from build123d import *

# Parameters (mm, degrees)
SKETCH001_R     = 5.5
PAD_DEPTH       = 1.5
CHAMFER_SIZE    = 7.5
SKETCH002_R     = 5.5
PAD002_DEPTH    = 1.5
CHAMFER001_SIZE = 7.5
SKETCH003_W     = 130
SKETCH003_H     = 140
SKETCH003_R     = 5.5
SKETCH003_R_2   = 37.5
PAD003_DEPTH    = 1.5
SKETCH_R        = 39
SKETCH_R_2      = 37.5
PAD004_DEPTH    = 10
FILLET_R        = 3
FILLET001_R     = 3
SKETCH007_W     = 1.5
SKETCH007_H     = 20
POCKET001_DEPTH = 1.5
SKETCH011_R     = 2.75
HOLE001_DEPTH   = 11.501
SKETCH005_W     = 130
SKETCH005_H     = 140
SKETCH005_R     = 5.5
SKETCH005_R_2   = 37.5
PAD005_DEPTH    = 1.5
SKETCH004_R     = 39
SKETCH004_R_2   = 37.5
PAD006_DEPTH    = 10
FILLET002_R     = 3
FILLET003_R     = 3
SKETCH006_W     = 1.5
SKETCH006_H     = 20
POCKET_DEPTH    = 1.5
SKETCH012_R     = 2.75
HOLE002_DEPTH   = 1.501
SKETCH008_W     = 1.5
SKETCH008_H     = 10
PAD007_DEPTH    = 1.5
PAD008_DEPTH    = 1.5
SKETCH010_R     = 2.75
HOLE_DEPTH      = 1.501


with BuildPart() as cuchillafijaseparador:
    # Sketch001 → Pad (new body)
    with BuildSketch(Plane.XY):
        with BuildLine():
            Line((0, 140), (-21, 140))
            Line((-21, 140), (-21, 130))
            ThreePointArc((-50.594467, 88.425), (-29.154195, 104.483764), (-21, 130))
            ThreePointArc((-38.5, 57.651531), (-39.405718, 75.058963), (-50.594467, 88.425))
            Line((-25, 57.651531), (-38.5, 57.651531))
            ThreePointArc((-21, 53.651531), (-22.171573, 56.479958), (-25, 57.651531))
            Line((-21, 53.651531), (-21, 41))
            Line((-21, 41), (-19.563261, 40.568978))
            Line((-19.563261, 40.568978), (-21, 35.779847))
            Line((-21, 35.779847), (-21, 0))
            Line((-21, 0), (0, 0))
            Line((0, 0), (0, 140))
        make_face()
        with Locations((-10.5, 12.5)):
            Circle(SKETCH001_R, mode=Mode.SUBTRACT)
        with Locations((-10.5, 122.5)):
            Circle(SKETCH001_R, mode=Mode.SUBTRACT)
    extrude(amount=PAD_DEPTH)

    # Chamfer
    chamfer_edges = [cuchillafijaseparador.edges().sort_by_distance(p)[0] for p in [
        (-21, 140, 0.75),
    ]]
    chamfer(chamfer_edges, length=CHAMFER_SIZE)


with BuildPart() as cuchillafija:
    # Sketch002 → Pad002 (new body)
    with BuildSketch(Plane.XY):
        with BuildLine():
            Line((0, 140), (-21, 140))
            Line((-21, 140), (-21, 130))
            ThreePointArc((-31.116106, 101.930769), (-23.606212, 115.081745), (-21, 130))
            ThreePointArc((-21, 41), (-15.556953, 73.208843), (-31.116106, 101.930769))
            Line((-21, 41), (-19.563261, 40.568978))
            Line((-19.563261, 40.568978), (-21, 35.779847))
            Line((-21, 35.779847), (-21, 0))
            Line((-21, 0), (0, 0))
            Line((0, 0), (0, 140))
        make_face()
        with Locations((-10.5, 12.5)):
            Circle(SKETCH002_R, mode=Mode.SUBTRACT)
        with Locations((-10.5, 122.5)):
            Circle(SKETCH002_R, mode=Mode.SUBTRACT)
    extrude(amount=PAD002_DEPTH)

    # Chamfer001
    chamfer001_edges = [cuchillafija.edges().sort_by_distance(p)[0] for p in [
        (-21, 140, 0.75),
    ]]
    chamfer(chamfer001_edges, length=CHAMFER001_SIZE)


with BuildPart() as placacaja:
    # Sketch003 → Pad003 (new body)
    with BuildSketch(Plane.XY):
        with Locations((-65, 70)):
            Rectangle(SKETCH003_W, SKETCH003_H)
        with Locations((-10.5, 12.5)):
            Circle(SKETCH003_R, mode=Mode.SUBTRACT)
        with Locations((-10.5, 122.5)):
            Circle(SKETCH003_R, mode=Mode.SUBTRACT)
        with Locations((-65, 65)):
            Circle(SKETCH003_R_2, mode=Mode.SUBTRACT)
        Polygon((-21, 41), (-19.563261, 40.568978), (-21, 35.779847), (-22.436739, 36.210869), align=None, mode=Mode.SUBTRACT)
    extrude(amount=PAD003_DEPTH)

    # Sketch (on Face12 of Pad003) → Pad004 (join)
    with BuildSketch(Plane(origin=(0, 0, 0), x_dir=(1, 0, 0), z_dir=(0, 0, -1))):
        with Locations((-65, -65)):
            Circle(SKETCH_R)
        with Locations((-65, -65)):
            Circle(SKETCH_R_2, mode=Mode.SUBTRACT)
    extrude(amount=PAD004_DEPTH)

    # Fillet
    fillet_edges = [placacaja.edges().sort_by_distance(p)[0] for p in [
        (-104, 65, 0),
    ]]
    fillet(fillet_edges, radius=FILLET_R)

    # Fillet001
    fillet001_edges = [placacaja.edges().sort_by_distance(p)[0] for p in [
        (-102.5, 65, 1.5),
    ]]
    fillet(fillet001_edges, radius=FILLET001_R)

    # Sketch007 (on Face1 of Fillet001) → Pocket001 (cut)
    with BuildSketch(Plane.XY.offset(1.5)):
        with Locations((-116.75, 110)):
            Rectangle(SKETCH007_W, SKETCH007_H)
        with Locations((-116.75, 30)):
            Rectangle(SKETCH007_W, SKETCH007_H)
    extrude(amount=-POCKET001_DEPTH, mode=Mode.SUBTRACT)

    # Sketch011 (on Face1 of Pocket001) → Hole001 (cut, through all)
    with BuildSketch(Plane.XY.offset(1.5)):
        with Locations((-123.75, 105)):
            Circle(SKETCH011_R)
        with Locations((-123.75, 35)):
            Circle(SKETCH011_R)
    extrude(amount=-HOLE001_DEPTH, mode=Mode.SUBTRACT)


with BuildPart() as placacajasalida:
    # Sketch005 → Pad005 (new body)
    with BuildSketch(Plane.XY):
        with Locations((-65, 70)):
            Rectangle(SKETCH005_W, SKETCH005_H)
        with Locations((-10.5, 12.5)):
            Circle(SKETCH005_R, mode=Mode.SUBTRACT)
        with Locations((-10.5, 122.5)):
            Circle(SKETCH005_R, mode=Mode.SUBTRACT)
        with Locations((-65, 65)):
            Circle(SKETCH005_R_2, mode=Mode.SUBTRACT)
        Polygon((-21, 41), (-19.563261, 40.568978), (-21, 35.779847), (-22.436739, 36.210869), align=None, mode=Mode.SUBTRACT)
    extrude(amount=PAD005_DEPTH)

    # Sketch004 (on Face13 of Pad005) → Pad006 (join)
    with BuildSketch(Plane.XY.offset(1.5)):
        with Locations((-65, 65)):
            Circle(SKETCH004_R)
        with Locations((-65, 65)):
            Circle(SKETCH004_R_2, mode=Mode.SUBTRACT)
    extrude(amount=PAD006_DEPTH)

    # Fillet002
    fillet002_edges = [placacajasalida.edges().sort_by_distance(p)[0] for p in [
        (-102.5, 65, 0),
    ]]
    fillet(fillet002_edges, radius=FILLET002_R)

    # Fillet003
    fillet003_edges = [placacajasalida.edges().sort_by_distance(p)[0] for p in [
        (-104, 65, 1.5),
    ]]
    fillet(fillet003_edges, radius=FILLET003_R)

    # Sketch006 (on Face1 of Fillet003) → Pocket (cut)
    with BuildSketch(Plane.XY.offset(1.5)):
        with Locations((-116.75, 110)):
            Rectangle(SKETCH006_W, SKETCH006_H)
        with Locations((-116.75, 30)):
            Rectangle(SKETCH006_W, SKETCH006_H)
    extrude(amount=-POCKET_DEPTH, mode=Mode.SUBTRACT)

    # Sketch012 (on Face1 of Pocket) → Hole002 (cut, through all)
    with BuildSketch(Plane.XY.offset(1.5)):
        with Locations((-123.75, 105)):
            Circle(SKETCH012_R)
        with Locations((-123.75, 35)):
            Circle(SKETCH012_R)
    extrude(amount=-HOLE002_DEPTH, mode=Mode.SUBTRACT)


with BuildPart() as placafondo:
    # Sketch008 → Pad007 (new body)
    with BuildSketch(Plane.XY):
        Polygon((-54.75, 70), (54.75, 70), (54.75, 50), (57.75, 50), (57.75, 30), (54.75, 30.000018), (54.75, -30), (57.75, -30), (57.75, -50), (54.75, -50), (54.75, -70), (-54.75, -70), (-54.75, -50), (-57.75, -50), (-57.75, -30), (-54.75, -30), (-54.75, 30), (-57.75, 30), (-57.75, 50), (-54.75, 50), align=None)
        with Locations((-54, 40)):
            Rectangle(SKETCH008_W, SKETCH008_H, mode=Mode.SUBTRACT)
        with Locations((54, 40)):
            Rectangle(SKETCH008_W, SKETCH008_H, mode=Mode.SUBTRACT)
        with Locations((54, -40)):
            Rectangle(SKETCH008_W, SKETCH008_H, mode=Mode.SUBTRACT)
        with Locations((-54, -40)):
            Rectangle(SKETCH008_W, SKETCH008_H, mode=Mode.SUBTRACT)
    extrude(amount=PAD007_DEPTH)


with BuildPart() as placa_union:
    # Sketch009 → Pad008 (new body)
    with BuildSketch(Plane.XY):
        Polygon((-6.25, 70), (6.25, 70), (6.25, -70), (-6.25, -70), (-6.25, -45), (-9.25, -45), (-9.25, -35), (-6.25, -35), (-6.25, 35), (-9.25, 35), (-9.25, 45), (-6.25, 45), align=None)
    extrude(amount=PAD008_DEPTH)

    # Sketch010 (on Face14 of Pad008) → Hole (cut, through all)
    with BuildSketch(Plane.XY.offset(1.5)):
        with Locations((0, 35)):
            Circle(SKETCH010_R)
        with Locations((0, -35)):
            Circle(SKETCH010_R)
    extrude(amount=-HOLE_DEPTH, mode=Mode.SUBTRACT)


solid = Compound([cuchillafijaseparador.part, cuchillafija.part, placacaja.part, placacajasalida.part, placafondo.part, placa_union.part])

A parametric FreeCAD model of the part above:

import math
import FreeCAD as App
import Part
import Sketcher
from FreeCAD import Vector


def edges_at(feature, points):
    """Names of the edges that pass closest to the given points."""
    edges = feature.Shape.Edges
    near = lambda p: min(range(len(edges)), key=lambda i: edges[i].distToShape(Part.Vertex(*p))[0])
    return sorted({f"Edge{near(p) + 1}" for p in points})

doc = App.newDocument("Part")
body = doc.addObject("PartDesign::Body", "Body")

# Sketch on XY plane
sketch1 = doc.addObject("Sketcher::SketchObject", "Sketch")
body.addObject(sketch1)
sketch1.AttachmentSupport = (doc.XY_Plane, [""])
sketch1.MapMode = "FlatFace"
sketch1.addGeometry(Part.LineSegment(Vector(0, 140, 0), Vector(-21, 140, 0)), False)
sketch1.addGeometry(Part.LineSegment(Vector(-21, 140, 0), Vector(-21, 130, 0)), False)
sketch1.addGeometry(Part.ArcOfCircle(Part.Circle(Vector(-65, 130, 0), Vector(0, 0, 1), 44), math.radians(-71), math.radians(0)), False)
sketch1.addGeometry(Part.ArcOfCircle(Part.Circle(Vector(-65, 65, 0), Vector(0, 0, 1), 27.5), math.radians(-15), math.radians(58)), False)
sketch1.addGeometry(Part.LineSegment(Vector(-38.5, 57.7, 0), Vector(-25, 57.7, 0)), False)
sketch1.addGeometry(Part.ArcOfCircle(Part.Circle(Vector(-25, 53.7, 0), Vector(0, 0, 1), 4), math.radians(0), math.radians(90)), False)
sketch1.addGeometry(Part.LineSegment(Vector(-21, 53.7, 0), Vector(-21, 41, 0)), False)
sketch1.addGeometry(Part.LineSegment(Vector(-21, 41, 0), Vector(-19.6, 40.6, 0)), False)
sketch1.addGeometry(Part.LineSegment(Vector(-19.6, 40.6, 0), Vector(-21, 35.8, 0)), False)
sketch1.addGeometry(Part.LineSegment(Vector(-21, 35.8, 0), Vector(-21, 0, 0)), False)
sketch1.addGeometry(Part.LineSegment(Vector(-21, 0, 0), Vector(0, 0, 0)), False)
sketch1.addGeometry(Part.LineSegment(Vector(0, 0, 0), Vector(0, 140, 0)), False)
sketch1.addGeometry(Part.Circle(Vector(-10.5, 12.5, 0), Vector(0, 0, 1), 5.5), False)
sketch1.addGeometry(Part.Circle(Vector(-10.5, 122.5, 0), Vector(0, 0, 1), 5.5), False)
sketch1.addConstraint(Sketcher.Constraint("Coincident", 0, 2, 1, 1))
sketch1.addConstraint(Sketcher.Constraint("Tangent", 1, 2, 2, 2))
sketch1.addConstraint(Sketcher.Constraint("Coincident", 2, 1, 3, 2))
sketch1.addConstraint(Sketcher.Constraint("Coincident", 3, 1, 4, 1))
sketch1.addConstraint(Sketcher.Constraint("Tangent", 4, 2, 5, 2))
sketch1.addConstraint(Sketcher.Constraint("Tangent", 5, 1, 6, 1))
sketch1.addConstraint(Sketcher.Constraint("Coincident", 6, 2, 7, 1))
sketch1.addConstraint(Sketcher.Constraint("Coincident", 7, 2, 8, 1))
sketch1.addConstraint(Sketcher.Constraint("Coincident", 8, 2, 9, 1))
sketch1.addConstraint(Sketcher.Constraint("Coincident", 9, 2, 10, 1))
sketch1.addConstraint(Sketcher.Constraint("Coincident", 10, 2, 11, 1))
sketch1.addConstraint(Sketcher.Constraint("Coincident", 11, 2, 0, 1))
sketch1.addConstraint(Sketcher.Constraint("Horizontal", 0))
sketch1.addConstraint(Sketcher.Constraint("Vertical", 1))
sketch1.addConstraint(Sketcher.Constraint("Horizontal", 4))
sketch1.addConstraint(Sketcher.Constraint("Vertical", 6))
sketch1.addConstraint(Sketcher.Constraint("Vertical", 9))
sketch1.addConstraint(Sketcher.Constraint("Horizontal", 10))
sketch1.addConstraint(Sketcher.Constraint("Vertical", 11))
sketch1.addConstraint(Sketcher.Constraint("Coincident", 10, 2, -1, 1))
sketch1.addConstraint(Sketcher.Constraint("Equal", 12, 13))
sketch1.addConstraint(Sketcher.Constraint("Perpendicular", 7, 8))
sketch1.addConstraint(Sketcher.Constraint("Vertical", 2, 3, 3, 3))
sketch1.addConstraint(Sketcher.Constraint("Vertical", 12, 3, 13, 3))
sketch1.addConstraint(Sketcher.Constraint("Vertical", 1, 2, 5, 1))
sketch1.addConstraint(Sketcher.Constraint("Vertical", 6, 2, 8, 2))
sketch1.addConstraint(Sketcher.Constraint("Diameter", 12, 11.0))
sketch1.addConstraint(Sketcher.Constraint("Radius", 2, 43.999998))
sketch1.addConstraint(Sketcher.Constraint("Radius", 5, 4.0))
sketch1.addConstraint(Sketcher.Constraint("Radius", 3, 27.5))
sketch1.addConstraint(Sketcher.Constraint("DistanceX", 0, 2, 0, 1, 21.0))
sketch1.addConstraint(Sketcher.Constraint("DistanceY", 1, 2, 1, 1, 10.0))
sketch1.addConstraint(Sketcher.Constraint("DistanceY", 11, 1, 11, 2, 140.0))
sketch1.addConstraint(Sketcher.Constraint("Distance", 8, 4.999999))
sketch1.addConstraint(Sketcher.Constraint("DistanceX", 4, 1, 4, 2, 13.5))
sketch1.addConstraint(Sketcher.Constraint("DistanceY", -1, 1, 3, 3, 65.0))
sketch1.addConstraint(Sketcher.Constraint("DistanceY", -1, 1, 6, 2, 41.0))
sketch1.addConstraint(Sketcher.Constraint("DistanceY", 12, 3, 13, 3, 110.0))
sketch1.addConstraint(Sketcher.Constraint("DistanceX", 3, 1, 12, 3, 28.0))
sketch1.addConstraint(Sketcher.Constraint("Distance", 7, 1.5))
sketch1.addConstraint(Sketcher.Constraint("DistanceY", -1, 1, 12, 3, 12.5))
pad1 = doc.addObject("PartDesign::Pad", "Pad")
body.addObject(pad1)
pad1.Profile = sketch1
pad1.Length = 1.5
doc.recompute()

chamfer = doc.addObject("PartDesign::Chamfer", "Chamfer")
body.addObject(chamfer)
chamfer.Base = (pad1, edges_at(pad1, [(-21, 140, 0.75)]))
chamfer.Size = 7.5
body2 = doc.addObject("PartDesign::Body", "Body001")

# Sketch on XY plane
sketch2 = doc.addObject("Sketcher::SketchObject", "Sketch001")
body2.addObject(sketch2)
sketch2.AttachmentSupport = (doc.getObject("XY_Plane001"), [""])
sketch2.MapMode = "FlatFace"
sketch2.addGeometry(Part.LineSegment(Vector(0, 140, 0), Vector(-21, 140, 0)), False)
sketch2.addGeometry(Part.LineSegment(Vector(-21, 140, 0), Vector(-21, 130, 0)), False)
sketch2.addGeometry(Part.ArcOfCircle(Part.Circle(Vector(-65, 130, 0), Vector(0, 0, 1), 44), math.radians(-40), math.radians(0)), False)
sketch2.addGeometry(Part.ArcOfCircle(Part.Circle(Vector(-65, 65, 0), Vector(0, 0, 1), 50.1), math.radians(-29), math.radians(47)), False)
sketch2.addGeometry(Part.LineSegment(Vector(-21, 41, 0), Vector(-19.6, 40.6, 0)), False)
sketch2.addGeometry(Part.LineSegment(Vector(-19.6, 40.6, 0), Vector(-21, 35.8, 0)), False)
sketch2.addGeometry(Part.LineSegment(Vector(-21, 35.8, 0), Vector(-21, 0, 0)), False)
sketch2.addGeometry(Part.LineSegment(Vector(-21, 0, 0), Vector(0, 0, 0)), False)
sketch2.addGeometry(Part.LineSegment(Vector(0, 0, 0), Vector(0, 140, 0)), False)
sketch2.addGeometry(Part.Circle(Vector(-10.5, 12.5, 0), Vector(0, 0, 1), 5.5), False)
sketch2.addGeometry(Part.Circle(Vector(-10.5, 122.5, 0), Vector(0, 0, 1), 5.5), False)
sketch2.addConstraint(Sketcher.Constraint("Coincident", 0, 2, 1, 1))
sketch2.addConstraint(Sketcher.Constraint("Tangent", 1, 2, 2, 2))
sketch2.addConstraint(Sketcher.Constraint("Coincident", 2, 1, 3, 2))
sketch2.addConstraint(Sketcher.Constraint("Coincident", 3, 1, 4, 1))
sketch2.addConstraint(Sketcher.Constraint("Coincident", 4, 2, 5, 1))
sketch2.addConstraint(Sketcher.Constraint("Coincident", 5, 2, 6, 1))
sketch2.addConstraint(Sketcher.Constraint("Coincident", 6, 2, 7, 1))
sketch2.addConstraint(Sketcher.Constraint("Coincident", 7, 2, 8, 1))
sketch2.addConstraint(Sketcher.Constraint("Coincident", 8, 2, 0, 1))
sketch2.addConstraint(Sketcher.Constraint("Horizontal", 0))
sketch2.addConstraint(Sketcher.Constraint("Vertical", 1))
sketch2.addConstraint(Sketcher.Constraint("Vertical", 6))
sketch2.addConstraint(Sketcher.Constraint("Horizontal", 7))
sketch2.addConstraint(Sketcher.Constraint("Vertical", 8))
sketch2.addConstraint(Sketcher.Constraint("Coincident", 7, 2, -1, 1))
sketch2.addConstraint(Sketcher.Constraint("Equal", 9, 10))
sketch2.addConstraint(Sketcher.Constraint("Perpendicular", 4, 5))
sketch2.addConstraint(Sketcher.Constraint("Vertical", 9, 3, 10, 3))
sketch2.addConstraint(Sketcher.Constraint("Vertical", 1, 2, 3, 1))
sketch2.addConstraint(Sketcher.Constraint("Vertical", 3, 1, 5, 2))
sketch2.addConstraint(Sketcher.Constraint("Diameter", 9, 11.0))
sketch2.addConstraint(Sketcher.Constraint("DistanceX", 0, 2, 0, 1, 21.0))
sketch2.addConstraint(Sketcher.Constraint("DistanceY", 1, 2, 1, 1, 10.0))
sketch2.addConstraint(Sketcher.Constraint("DistanceY", 8, 1, 8, 2, 140.0))
sketch2.addConstraint(Sketcher.Constraint("Distance", 5, 4.999999))
sketch2.addConstraint(Sketcher.Constraint("DistanceX", 3, 3, -1, 1, 64.999999))
sketch2.addConstraint(Sketcher.Constraint("DistanceY", -1, 1, 3, 3, 65.0))
sketch2.addConstraint(Sketcher.Constraint("DistanceY", -1, 1, 3, 1, 41.0))
sketch2.addConstraint(Sketcher.Constraint("DistanceY", 9, 3, 10, 3, 110.0))
sketch2.addConstraint(Sketcher.Constraint("Distance", 4, 1.5))
sketch2.addConstraint(Sketcher.Constraint("DistanceX", 9, 3, -1, 1, 10.5))
sketch2.addConstraint(Sketcher.Constraint("DistanceY", -1, 1, 9, 3, 12.5))
sketch2.addConstraint(Sketcher.Constraint("Radius", 2, 43.999997))
pad2 = doc.addObject("PartDesign::Pad", "Pad001")
body2.addObject(pad2)
pad2.Profile = sketch2
pad2.Length = 1.5
doc.recompute()

chamfer2 = doc.addObject("PartDesign::Chamfer", "Chamfer001")
body2.addObject(chamfer2)
chamfer2.Base = (pad2, edges_at(pad2, [(-21, 140, 0.75)]))
chamfer2.Size = 7.5
body3 = doc.addObject("PartDesign::Body", "Body002")

# Sketch on XY plane
sketch3 = doc.addObject("Sketcher::SketchObject", "Sketch002")
body3.addObject(sketch3)
sketch3.AttachmentSupport = (doc.getObject("XY_Plane002"), [""])
sketch3.MapMode = "FlatFace"
sketch3.addGeometry(Part.LineSegment(Vector(-130, 140, 0), Vector(-130, 0, 0)), False)
sketch3.addGeometry(Part.LineSegment(Vector(-130, 0, 0), Vector(0, 0, 0)), False)
sketch3.addGeometry(Part.LineSegment(Vector(0, 0, 0), Vector(0, 140, 0)), False)
sketch3.addGeometry(Part.LineSegment(Vector(0, 140, 0), Vector(-130, 140, 0)), False)
sketch3.addGeometry(Part.Circle(Vector(-65, 65, 0), Vector(0, 0, 1), 37.5), False)
sketch3.addGeometry(Part.Circle(Vector(-10.5, 12.5, 0), Vector(0, 0, 1), 5.5), False)
sketch3.addGeometry(Part.LineSegment(Vector(-22.4, 36.2, 0), Vector(-21, 41, 0)), False)
sketch3.addGeometry(Part.LineSegment(Vector(-21, 41, 0), Vector(-19.6, 40.6, 0)), False)
sketch3.addGeometry(Part.LineSegment(Vector(-19.6, 40.6, 0), Vector(-21, 35.8, 0)), False)
sketch3.addGeometry(Part.LineSegment(Vector(-21, 35.8, 0), Vector(-22.4, 36.2, 0)), False)
sketch3.addGeometry(Part.Circle(Vector(-10.5, 122.5, 0), Vector(0, 0, 1), 5.5), False)
sketch3.addConstraint(Sketcher.Constraint("Coincident", 0, 2, 1, 1))
sketch3.addConstraint(Sketcher.Constraint("Coincident", 1, 2, 2, 1))
sketch3.addConstraint(Sketcher.Constraint("Coincident", 2, 2, 3, 1))
sketch3.addConstraint(Sketcher.Constraint("Coincident", 3, 2, 0, 1))
sketch3.addConstraint(Sketcher.Constraint("Coincident", 6, 2, 7, 1))
sketch3.addConstraint(Sketcher.Constraint("Coincident", 7, 2, 8, 1))
sketch3.addConstraint(Sketcher.Constraint("Coincident", 8, 2, 9, 1))
sketch3.addConstraint(Sketcher.Constraint("Coincident", 9, 2, 6, 1))
sketch3.addConstraint(Sketcher.Constraint("Vertical", 0))
sketch3.addConstraint(Sketcher.Constraint("Horizontal", 1))
sketch3.addConstraint(Sketcher.Constraint("Vertical", 2))
sketch3.addConstraint(Sketcher.Constraint("Horizontal", 3))
sketch3.addConstraint(Sketcher.Constraint("Coincident", 1, 2, -1, 1))
sketch3.addConstraint(Sketcher.Constraint("Equal", 5, 10))
sketch3.addConstraint(Sketcher.Constraint("Perpendicular", 6, 7))
sketch3.addConstraint(Sketcher.Constraint("Perpendicular", 7, 8))
sketch3.addConstraint(Sketcher.Constraint("Perpendicular", 8, 9))
sketch3.addConstraint(Sketcher.Constraint("Vertical", 5, 3, 10, 3))
sketch3.addConstraint(Sketcher.Constraint("Vertical", 6, 2, 8, 2))
sketch3.addConstraint(Sketcher.Constraint("Diameter", 4, 75.0))
sketch3.addConstraint(Sketcher.Constraint("Diameter", 5, 11.0))
sketch3.addConstraint(Sketcher.Constraint("DistanceX", 1, 1, 1, 2, 130.0))
sketch3.addConstraint(Sketcher.Constraint("DistanceY", 0, 2, 0, 1, 140.0))
sketch3.addConstraint(Sketcher.Constraint("Distance", 6, 4.999999))
sketch3.addConstraint(Sketcher.Constraint("DistanceX", 4, 3, -1, 1, 65.0))
sketch3.addConstraint(Sketcher.Constraint("DistanceY", -1, 1, 4, 3, 65.0))
sketch3.addConstraint(Sketcher.Constraint("DistanceX", 6, 2, -1, 1, 21.0))
sketch3.addConstraint(Sketcher.Constraint("DistanceY", -1, 1, 6, 2, 41.0))
sketch3.addConstraint(Sketcher.Constraint("DistanceY", 5, 3, 10, 3, 110.0))
sketch3.addConstraint(Sketcher.Constraint("Distance", 7, 1.5))
sketch3.addConstraint(Sketcher.Constraint("DistanceX", 5, 3, -1, 1, 10.5))
sketch3.addConstraint(Sketcher.Constraint("DistanceY", -1, 1, 5, 3, 12.5))
pad3 = doc.addObject("PartDesign::Pad", "Pad002")
body3.addObject(pad3)
pad3.Profile = sketch3
pad3.Length = 1.5

# Sketch on XY plane
sketch4 = doc.addObject("Sketcher::SketchObject", "Sketch003")
body3.addObject(sketch4)
sketch4.AttachmentSupport = (doc.getObject("XY_Plane002"), [""])
sketch4.MapMode = "FlatFace"
sketch4.addGeometry(Part.Circle(Vector(-65, 65, 0), Vector(0, 0, 1), 39), False)
sketch4.addGeometry(Part.Circle(Vector(-65, 65, 0), Vector(0, 0, 1), 38), False)
sketch4.addConstraint(Sketcher.Constraint("Coincident", 1, 3, 0, 3))
sketch4.addConstraint(Sketcher.Constraint("Diameter", 0, 78.0))
sketch4.addConstraint(Sketcher.Constraint("Diameter", 1, 75.0))
sketch4.addConstraint(Sketcher.Constraint("DistanceX", 0, 3, -1, 1, 65.0))
sketch4.addConstraint(Sketcher.Constraint("DistanceY", -1, 1, 0, 3, 65.0))
pad4 = doc.addObject("PartDesign::Pad", "Pad003")
body3.addObject(pad4)
pad4.Profile = sketch4
pad4.Length = 10
pad4.Reversed = True
doc.recompute()

fillet = doc.addObject("PartDesign::Fillet", "Fillet")
body3.addObject(fillet)
fillet.Base = (pad4, edges_at(pad4, [(-104, 65, 0)]))
fillet.Radius = 3
doc.recompute()

fillet2 = doc.addObject("PartDesign::Fillet", "Fillet001")
body3.addObject(fillet2)
fillet2.Base = (fillet, edges_at(fillet, [(-102.5, 65, 1.5)]))
fillet2.Radius = 3

# Sketch on XY plane
sketch5 = doc.addObject("Sketcher::SketchObject", "Sketch004")
body3.addObject(sketch5)
sketch5.AttachmentSupport = (doc.getObject("XY_Plane002"), [""])
sketch5.MapMode = "FlatFace"
sketch5.AttachmentOffset = App.Placement(Vector(0, 0, 1.5), App.Rotation())
sketch5.addGeometry(Part.LineSegment(Vector(-117.5, 120, 0), Vector(-117.5, 100, 0)), False)
sketch5.addGeometry(Part.LineSegment(Vector(-117.5, 100, 0), Vector(-116, 100, 0)), False)
sketch5.addGeometry(Part.LineSegment(Vector(-116, 100, 0), Vector(-116, 120, 0)), False)
sketch5.addGeometry(Part.LineSegment(Vector(-116, 120, 0), Vector(-117.5, 120, 0)), False)
sketch5.addGeometry(Part.LineSegment(Vector(-117.5, 40, 0), Vector(-117.5, 20, 0)), False)
sketch5.addGeometry(Part.LineSegment(Vector(-117.5, 20, 0), Vector(-116, 20, 0)), False)
sketch5.addGeometry(Part.LineSegment(Vector(-116, 20, 0), Vector(-116, 40, 0)), False)
sketch5.addGeometry(Part.LineSegment(Vector(-116, 40, 0), Vector(-117.5, 40, 0)), False)
sketch5.addConstraint(Sketcher.Constraint("Coincident", 0, 2, 1, 1))
sketch5.addConstraint(Sketcher.Constraint("Coincident", 1, 2, 2, 1))
sketch5.addConstraint(Sketcher.Constraint("Coincident", 2, 2, 3, 1))
sketch5.addConstraint(Sketcher.Constraint("Coincident", 3, 2, 0, 1))
sketch5.addConstraint(Sketcher.Constraint("Coincident", 4, 2, 5, 1))
sketch5.addConstraint(Sketcher.Constraint("Coincident", 5, 2, 6, 1))
sketch5.addConstraint(Sketcher.Constraint("Coincident", 6, 2, 7, 1))
sketch5.addConstraint(Sketcher.Constraint("Coincident", 7, 2, 4, 1))
sketch5.addConstraint(Sketcher.Constraint("Vertical", 0))
sketch5.addConstraint(Sketcher.Constraint("Horizontal", 1))
sketch5.addConstraint(Sketcher.Constraint("Vertical", 2))
sketch5.addConstraint(Sketcher.Constraint("Horizontal", 3))
sketch5.addConstraint(Sketcher.Constraint("Vertical", 4))
sketch5.addConstraint(Sketcher.Constraint("Horizontal", 5))
sketch5.addConstraint(Sketcher.Constraint("Vertical", 6))
sketch5.addConstraint(Sketcher.Constraint("Horizontal", 7))
sketch5.addConstraint(Sketcher.Constraint("Vertical", 3, 2, 4, 2))
sketch5.addConstraint(Sketcher.Constraint("Vertical", 2, 2, 5, 2))
sketch5.addConstraint(Sketcher.Constraint("Equal", 2, 4))
sketch5.addConstraint(Sketcher.Constraint("DistanceY", 0, 2, 0, 1, 20.0))
sketch5.addConstraint(Sketcher.Constraint("DistanceX", 1, 1, 1, 2, 1.5))
sketch5.addConstraint(Sketcher.Constraint("DistanceY", -1, 1, 0, 2, 100.0))
sketch5.addConstraint(Sketcher.Constraint("DistanceX", 1, 2, -1, 1, 116.0))
sketch5.addConstraint(Sketcher.Constraint("DistanceY", -1, 1, 4, 2, 20.0))
pocket1 = doc.addObject("PartDesign::Pocket", "Pocket")
body3.addObject(pocket1)
pocket1.Profile = sketch5
pocket1.Length = 1.5

# Sketch on XY plane
sketch6 = doc.addObject("Sketcher::SketchObject", "Sketch005")
body3.addObject(sketch6)
sketch6.AttachmentSupport = (doc.getObject("XY_Plane002"), [""])
sketch6.MapMode = "FlatFace"
sketch6.AttachmentOffset = App.Placement(Vector(0, 0, 1.5), App.Rotation())
sketch6.addGeometry(Part.Circle(Vector(-123.8, 105, 0), Vector(0, 0, 1), 2.8), False)
sketch6.addGeometry(Part.Circle(Vector(-123.8, 35, 0), Vector(0, 0, 1), 2.8), False)
sketch6.addConstraint(Sketcher.Constraint("Equal", 0, 1))
sketch6.addConstraint(Sketcher.Constraint("Vertical", 0, 3, 1, 3))
sketch6.addConstraint(Sketcher.Constraint("Diameter", 0, 5.5))
sketch6.addConstraint(Sketcher.Constraint("DistanceY", -1, 1, 0, 3, 105.0))
sketch6.addConstraint(Sketcher.Constraint("DistanceY", -1, 1, 1, 3, 35.0))
sketch6.addConstraint(Sketcher.Constraint("DistanceX", 0, 3, -1, 1, 123.75))
pocket2 = doc.addObject("PartDesign::Pocket", "Pocket001")
body3.addObject(pocket2)
pocket2.Profile = sketch6
pocket2.Type = "ThroughAll"
body4 = doc.addObject("PartDesign::Body", "Body003")

# Sketch on XY plane
sketch7 = doc.addObject("Sketcher::SketchObject", "Sketch006")
body4.addObject(sketch7)
sketch7.AttachmentSupport = (doc.getObject("XY_Plane003"), [""])
sketch7.MapMode = "FlatFace"
sketch7.addGeometry(Part.LineSegment(Vector(-130, 140, 0), Vector(-130, 0, 0)), False)
sketch7.addGeometry(Part.LineSegment(Vector(-130, 0, 0), Vector(0, 0, 0)), False)
sketch7.addGeometry(Part.LineSegment(Vector(0, 0, 0), Vector(0, 140, 0)), False)
sketch7.addGeometry(Part.LineSegment(Vector(0, 140, 0), Vector(-130, 140, 0)), False)
sketch7.addGeometry(Part.Circle(Vector(-65, 65, 0), Vector(0, 0, 1), 37.5), False)
sketch7.addGeometry(Part.Circle(Vector(-10.5, 12.5, 0), Vector(0, 0, 1), 5.5), False)
sketch7.addGeometry(Part.LineSegment(Vector(-22.4, 36.2, 0), Vector(-21, 41, 0)), False)
sketch7.addGeometry(Part.LineSegment(Vector(-21, 41, 0), Vector(-19.6, 40.6, 0)), False)
sketch7.addGeometry(Part.LineSegment(Vector(-19.6, 40.6, 0), Vector(-21, 35.8, 0)), False)
sketch7.addGeometry(Part.LineSegment(Vector(-21, 35.8, 0), Vector(-22.4, 36.2, 0)), False)
sketch7.addGeometry(Part.Circle(Vector(-10.5, 122.5, 0), Vector(0, 0, 1), 5.5), False)
sketch7.addConstraint(Sketcher.Constraint("Coincident", 0, 2, 1, 1))
sketch7.addConstraint(Sketcher.Constraint("Coincident", 1, 2, 2, 1))
sketch7.addConstraint(Sketcher.Constraint("Coincident", 2, 2, 3, 1))
sketch7.addConstraint(Sketcher.Constraint("Coincident", 3, 2, 0, 1))
sketch7.addConstraint(Sketcher.Constraint("Coincident", 6, 2, 7, 1))
sketch7.addConstraint(Sketcher.Constraint("Coincident", 7, 2, 8, 1))
sketch7.addConstraint(Sketcher.Constraint("Coincident", 8, 2, 9, 1))
sketch7.addConstraint(Sketcher.Constraint("Coincident", 9, 2, 6, 1))
sketch7.addConstraint(Sketcher.Constraint("Vertical", 0))
sketch7.addConstraint(Sketcher.Constraint("Horizontal", 1))
sketch7.addConstraint(Sketcher.Constraint("Vertical", 2))
sketch7.addConstraint(Sketcher.Constraint("Horizontal", 3))
sketch7.addConstraint(Sketcher.Constraint("Coincident", 1, 2, -1, 1))
sketch7.addConstraint(Sketcher.Constraint("Equal", 5, 10))
sketch7.addConstraint(Sketcher.Constraint("Perpendicular", 6, 7))
sketch7.addConstraint(Sketcher.Constraint("Perpendicular", 7, 8))
sketch7.addConstraint(Sketcher.Constraint("Perpendicular", 8, 9))
sketch7.addConstraint(Sketcher.Constraint("Vertical", 5, 3, 10, 3))
sketch7.addConstraint(Sketcher.Constraint("Vertical", 6, 2, 8, 2))
sketch7.addConstraint(Sketcher.Constraint("Diameter", 4, 75.0))
sketch7.addConstraint(Sketcher.Constraint("Diameter", 5, 11.0))
sketch7.addConstraint(Sketcher.Constraint("DistanceX", 1, 1, 1, 2, 130.0))
sketch7.addConstraint(Sketcher.Constraint("DistanceY", 0, 2, 0, 1, 140.0))
sketch7.addConstraint(Sketcher.Constraint("Distance", 6, 4.999999))
sketch7.addConstraint(Sketcher.Constraint("DistanceX", 4, 3, -1, 1, 65.0))
sketch7.addConstraint(Sketcher.Constraint("DistanceY", -1, 1, 4, 3, 65.0))
sketch7.addConstraint(Sketcher.Constraint("DistanceX", 6, 2, -1, 1, 21.0))
sketch7.addConstraint(Sketcher.Constraint("DistanceY", -1, 1, 6, 2, 41.0))
sketch7.addConstraint(Sketcher.Constraint("DistanceY", 5, 3, 10, 3, 110.0))
sketch7.addConstraint(Sketcher.Constraint("Distance", 7, 1.5))
sketch7.addConstraint(Sketcher.Constraint("DistanceX", 5, 3, -1, 1, 10.5))
sketch7.addConstraint(Sketcher.Constraint("DistanceY", -1, 1, 5, 3, 12.5))
pad5 = doc.addObject("PartDesign::Pad", "Pad004")
body4.addObject(pad5)
pad5.Profile = sketch7
pad5.Length = 1.5

# Sketch on XY plane
sketch8 = doc.addObject("Sketcher::SketchObject", "Sketch007")
body4.addObject(sketch8)
sketch8.AttachmentSupport = (doc.getObject("XY_Plane003"), [""])
sketch8.MapMode = "FlatFace"
sketch8.AttachmentOffset = App.Placement(Vector(0, 0, 1.5), App.Rotation())
sketch8.addGeometry(Part.Circle(Vector(-65, 65, 0), Vector(0, 0, 1), 39), False)
sketch8.addGeometry(Part.Circle(Vector(-65, 65, 0), Vector(0, 0, 1), 38), False)
sketch8.addConstraint(Sketcher.Constraint("Coincident", 1, 3, 0, 3))
sketch8.addConstraint(Sketcher.Constraint("Diameter", 0, 78.0))
sketch8.addConstraint(Sketcher.Constraint("Diameter", 1, 75.0))
sketch8.addConstraint(Sketcher.Constraint("DistanceX", 0, 3, -1, 1, 65.0))
sketch8.addConstraint(Sketcher.Constraint("DistanceY", -1, 1, 0, 3, 65.0))
pad6 = doc.addObject("PartDesign::Pad", "Pad005")
body4.addObject(pad6)
pad6.Profile = sketch8
pad6.Length = 10
doc.recompute()

fillet3 = doc.addObject("PartDesign::Fillet", "Fillet002")
body4.addObject(fillet3)
fillet3.Base = (pad6, edges_at(pad6, [(-102.5, 65, 0)]))
fillet3.Radius = 3
doc.recompute()

fillet4 = doc.addObject("PartDesign::Fillet", "Fillet003")
body4.addObject(fillet4)
fillet4.Base = (fillet3, edges_at(fillet3, [(-104, 65, 1.5)]))
fillet4.Radius = 3

# Sketch on XY plane
sketch9 = doc.addObject("Sketcher::SketchObject", "Sketch008")
body4.addObject(sketch9)
sketch9.AttachmentSupport = (doc.getObject("XY_Plane003"), [""])
sketch9.MapMode = "FlatFace"
sketch9.AttachmentOffset = App.Placement(Vector(0, 0, 1.5), App.Rotation())
sketch9.addGeometry(Part.LineSegment(Vector(-117.5, 120, 0), Vector(-117.5, 100, 0)), False)
sketch9.addGeometry(Part.LineSegment(Vector(-117.5, 100, 0), Vector(-116, 100, 0)), False)
sketch9.addGeometry(Part.LineSegment(Vector(-116, 100, 0), Vector(-116, 120, 0)), False)
sketch9.addGeometry(Part.LineSegment(Vector(-116, 120, 0), Vector(-117.5, 120, 0)), False)
sketch9.addGeometry(Part.LineSegment(Vector(-117.5, 40, 0), Vector(-117.5, 20, 0)), False)
sketch9.addGeometry(Part.LineSegment(Vector(-117.5, 20, 0), Vector(-116, 20, 0)), False)
sketch9.addGeometry(Part.LineSegment(Vector(-116, 20, 0), Vector(-116, 40, 0)), False)
sketch9.addGeometry(Part.LineSegment(Vector(-116, 40, 0), Vector(-117.5, 40, 0)), False)
sketch9.addConstraint(Sketcher.Constraint("Coincident", 0, 2, 1, 1))
sketch9.addConstraint(Sketcher.Constraint("Coincident", 1, 2, 2, 1))
sketch9.addConstraint(Sketcher.Constraint("Coincident", 2, 2, 3, 1))
sketch9.addConstraint(Sketcher.Constraint("Coincident", 3, 2, 0, 1))
sketch9.addConstraint(Sketcher.Constraint("Coincident", 4, 2, 5, 1))
sketch9.addConstraint(Sketcher.Constraint("Coincident", 5, 2, 6, 1))
sketch9.addConstraint(Sketcher.Constraint("Coincident", 6, 2, 7, 1))
sketch9.addConstraint(Sketcher.Constraint("Coincident", 7, 2, 4, 1))
sketch9.addConstraint(Sketcher.Constraint("Vertical", 0))
sketch9.addConstraint(Sketcher.Constraint("Horizontal", 1))
sketch9.addConstraint(Sketcher.Constraint("Vertical", 2))
sketch9.addConstraint(Sketcher.Constraint("Horizontal", 3))
sketch9.addConstraint(Sketcher.Constraint("Vertical", 4))
sketch9.addConstraint(Sketcher.Constraint("Horizontal", 5))
sketch9.addConstraint(Sketcher.Constraint("Vertical", 6))
sketch9.addConstraint(Sketcher.Constraint("Horizontal", 7))
sketch9.addConstraint(Sketcher.Constraint("Vertical", 3, 2, 4, 2))
sketch9.addConstraint(Sketcher.Constraint("Vertical", 2, 2, 5, 2))
sketch9.addConstraint(Sketcher.Constraint("Equal", 2, 4))
sketch9.addConstraint(Sketcher.Constraint("DistanceY", 0, 2, 0, 1, 20.0))
sketch9.addConstraint(Sketcher.Constraint("DistanceX", 1, 1, 1, 2, 1.5))
sketch9.addConstraint(Sketcher.Constraint("DistanceY", -1, 1, 0, 2, 100.0))
sketch9.addConstraint(Sketcher.Constraint("DistanceX", 1, 2, -1, 1, 116.0))
sketch9.addConstraint(Sketcher.Constraint("DistanceY", -1, 1, 4, 2, 20.0))
pocket3 = doc.addObject("PartDesign::Pocket", "Pocket002")
body4.addObject(pocket3)
pocket3.Profile = sketch9
pocket3.Length = 1.5

# Sketch on XY plane
sketch10 = doc.addObject("Sketcher::SketchObject", "Sketch009")
body4.addObject(sketch10)
sketch10.AttachmentSupport = (doc.getObject("XY_Plane003"), [""])
sketch10.MapMode = "FlatFace"
sketch10.AttachmentOffset = App.Placement(Vector(0, 0, 1.5), App.Rotation())
sketch10.addGeometry(Part.Circle(Vector(-123.8, 105, 0), Vector(0, 0, 1), 2.8), False)
sketch10.addGeometry(Part.Circle(Vector(-123.8, 35, 0), Vector(0, 0, 1), 2.8), False)
sketch10.addConstraint(Sketcher.Constraint("Equal", 0, 1))
sketch10.addConstraint(Sketcher.Constraint("Vertical", 0, 3, 1, 3))
sketch10.addConstraint(Sketcher.Constraint("Diameter", 0, 5.5))
sketch10.addConstraint(Sketcher.Constraint("DistanceY", -1, 1, 0, 3, 105.0))
sketch10.addConstraint(Sketcher.Constraint("DistanceY", -1, 1, 1, 3, 35.0))
sketch10.addConstraint(Sketcher.Constraint("DistanceX", 0, 3, -1, 1, 123.75))
pocket4 = doc.addObject("PartDesign::Pocket", "Pocket003")
body4.addObject(pocket4)
pocket4.Profile = sketch10
pocket4.Type = "ThroughAll"
body5 = doc.addObject("PartDesign::Body", "Body004")

# Sketch on XY plane
sketch11 = doc.addObject("Sketcher::SketchObject", "Sketch010")
body5.addObject(sketch11)
sketch11.AttachmentSupport = (doc.getObject("XY_Plane004"), [""])
sketch11.MapMode = "FlatFace"
sketch11.addGeometry(Part.LineSegment(Vector(54.8, 70, 0), Vector(-54.8, 70, 0)), False)
sketch11.addGeometry(Part.LineSegment(Vector(-54.8, 70, 0), Vector(-54.8, 50, 0)), False)
sketch11.addGeometry(Part.LineSegment(Vector(-54.8, 50, 0), Vector(-57.8, 50, 0)), False)
sketch11.addGeometry(Part.LineSegment(Vector(-57.8, 50, 0), Vector(-57.8, 30, 0)), False)
sketch11.addGeometry(Part.LineSegment(Vector(-57.8, 30, 0), Vector(-54.8, 30, 0)), False)
sketch11.addGeometry(Part.LineSegment(Vector(-54.8, 30, 0), Vector(-54.8, -30, 0)), False)
sketch11.addGeometry(Part.LineSegment(Vector(-54.8, -30, 0), Vector(-57.8, -30, 0)), False)
sketch11.addGeometry(Part.LineSegment(Vector(-57.8, -30, 0), Vector(-57.8, -50, 0)), False)
sketch11.addGeometry(Part.LineSegment(Vector(-57.8, -50, 0), Vector(-54.8, -50, 0)), False)
sketch11.addGeometry(Part.LineSegment(Vector(-54.8, -50, 0), Vector(-54.8, -70, 0)), False)
sketch11.addGeometry(Part.LineSegment(Vector(-54.8, -70, 0), Vector(54.8, -70, 0)), False)
sketch11.addGeometry(Part.LineSegment(Vector(54.8, -70, 0), Vector(54.8, -50, 0)), False)
sketch11.addGeometry(Part.LineSegment(Vector(54.8, -50, 0), Vector(57.8, -50, 0)), False)
sketch11.addGeometry(Part.LineSegment(Vector(57.8, -50, 0), Vector(57.8, -30, 0)), False)
sketch11.addGeometry(Part.LineSegment(Vector(57.8, -30, 0), Vector(54.8, -30, 0)), False)
sketch11.addGeometry(Part.LineSegment(Vector(54.8, -30, 0), Vector(54.8, 30, 0)), False)
sketch11.addGeometry(Part.LineSegment(Vector(54.8, 30, 0), Vector(57.8, 30, 0)), False)
sketch11.addGeometry(Part.LineSegment(Vector(57.8, 30, 0), Vector(57.8, 50, 0)), False)
sketch11.addGeometry(Part.LineSegment(Vector(57.8, 50, 0), Vector(54.8, 50, 0)), False)
sketch11.addGeometry(Part.LineSegment(Vector(54.8, 50, 0), Vector(54.8, 70, 0)), False)
sketch11.addGeometry(Part.LineSegment(Vector(53.2, -45, 0), Vector(53.2, -35, 0)), False)
sketch11.addGeometry(Part.LineSegment(Vector(53.2, -35, 0), Vector(54.8, -35, 0)), False)
sketch11.addGeometry(Part.LineSegment(Vector(54.8, -35, 0), Vector(54.8, -45, 0)), False)
sketch11.addGeometry(Part.LineSegment(Vector(54.8, -45, 0), Vector(53.2, -45, 0)), False)
sketch11.addGeometry(Part.LineSegment(Vector(-54.8, -45, 0), Vector(-54.8, -35, 0)), False)
sketch11.addGeometry(Part.LineSegment(Vector(-54.8, -35, 0), Vector(-53.2, -35, 0)), False)
sketch11.addGeometry(Part.LineSegment(Vector(-53.2, -35, 0), Vector(-53.2, -45, 0)), False)
sketch11.addGeometry(Part.LineSegment(Vector(-53.2, -45, 0), Vector(-54.8, -45, 0)), False)
sketch11.addGeometry(Part.LineSegment(Vector(53.2, 35, 0), Vector(53.2, 45, 0)), False)
sketch11.addGeometry(Part.LineSegment(Vector(53.2, 45, 0), Vector(54.8, 45, 0)), False)
sketch11.addGeometry(Part.LineSegment(Vector(54.8, 45, 0), Vector(54.8, 35, 0)), False)
sketch11.addGeometry(Part.LineSegment(Vector(54.8, 35, 0), Vector(53.2, 35, 0)), False)
sketch11.addGeometry(Part.LineSegment(Vector(-54.8, 35, 0), Vector(-54.8, 45, 0)), False)
sketch11.addGeometry(Part.LineSegment(Vector(-54.8, 45, 0), Vector(-53.2, 45, 0)), False)
sketch11.addGeometry(Part.LineSegment(Vector(-53.2, 45, 0), Vector(-53.2, 35, 0)), False)
sketch11.addGeometry(Part.LineSegment(Vector(-53.2, 35, 0), Vector(-54.8, 35, 0)), False)
sketch11.addConstraint(Sketcher.Constraint("Coincident", 0, 2, 1, 1))
sketch11.addConstraint(Sketcher.Constraint("Coincident", 1, 2, 2, 1))
sketch11.addConstraint(Sketcher.Constraint("Coincident", 2, 2, 3, 1))
sketch11.addConstraint(Sketcher.Constraint("Coincident", 3, 2, 4, 1))
sketch11.addConstraint(Sketcher.Constraint("Coincident", 4, 2, 5, 1))
sketch11.addConstraint(Sketcher.Constraint("Coincident", 5, 2, 6, 1))
sketch11.addConstraint(Sketcher.Constraint("Coincident", 6, 2, 7, 1))
sketch11.addConstraint(Sketcher.Constraint("Coincident", 7, 2, 8, 1))
sketch11.addConstraint(Sketcher.Constraint("Coincident", 8, 2, 9, 1))
sketch11.addConstraint(Sketcher.Constraint("Coincident", 9, 2, 10, 1))
sketch11.addConstraint(Sketcher.Constraint("Coincident", 10, 2, 11, 1))
sketch11.addConstraint(Sketcher.Constraint("Coincident", 11, 2, 12, 1))
sketch11.addConstraint(Sketcher.Constraint("Coincident", 12, 2, 13, 1))
sketch11.addConstraint(Sketcher.Constraint("Coincident", 13, 2, 14, 1))
sketch11.addConstraint(Sketcher.Constraint("Coincident", 14, 2, 15, 1))
sketch11.addConstraint(Sketcher.Constraint("Coincident", 15, 2, 16, 1))
sketch11.addConstraint(Sketcher.Constraint("Coincident", 16, 2, 17, 1))
sketch11.addConstraint(Sketcher.Constraint("Coincident", 17, 2, 18, 1))
sketch11.addConstraint(Sketcher.Constraint("Coincident", 18, 2, 19, 1))
sketch11.addConstraint(Sketcher.Constraint("Coincident", 19, 2, 0, 1))
sketch11.addConstraint(Sketcher.Constraint("Coincident", 20, 2, 21, 1))
sketch11.addConstraint(Sketcher.Constraint("Coincident", 21, 2, 22, 1))
sketch11.addConstraint(Sketcher.Constraint("Coincident", 22, 2, 23, 1))
sketch11.addConstraint(Sketcher.Constraint("Coincident", 23, 2, 20, 1))
sketch11.addConstraint(Sketcher.Constraint("Coincident", 24, 2, 25, 1))
sketch11.addConstraint(Sketcher.Constraint("Coincident", 25, 2, 26, 1))
sketch11.addConstraint(Sketcher.Constraint("Coincident", 26, 2, 27, 1))
sketch11.addConstraint(Sketcher.Constraint("Coincident", 27, 2, 24, 1))
sketch11.addConstraint(Sketcher.Constraint("Coincident", 28, 2, 29, 1))
sketch11.addConstraint(Sketcher.Constraint("Coincident", 29, 2, 30, 1))
sketch11.addConstraint(Sketcher.Constraint("Coincident", 30, 2, 31, 1))
sketch11.addConstraint(Sketcher.Constraint("Coincident", 31, 2, 28, 1))
sketch11.addConstraint(Sketcher.Constraint("Coincident", 32, 2, 33, 1))
sketch11.addConstraint(Sketcher.Constraint("Coincident", 33, 2, 34, 1))
sketch11.addConstraint(Sketcher.Constraint("Coincident", 34, 2, 35, 1))
sketch11.addConstraint(Sketcher.Constraint("Coincident", 35, 2, 32, 1))
sketch11.addConstraint(Sketcher.Constraint("Horizontal", 0))
sketch11.addConstraint(Sketcher.Constraint("Vertical", 1))
sketch11.addConstraint(Sketcher.Constraint("Horizontal", 2))
sketch11.addConstraint(Sketcher.Constraint("Vertical", 3))
sketch11.addConstraint(Sketcher.Constraint("Horizontal", 4))
sketch11.addConstraint(Sketcher.Constraint("Vertical", 5))
sketch11.addConstraint(Sketcher.Constraint("Horizontal", 6))
sketch11.addConstraint(Sketcher.Constraint("Vertical", 7))
sketch11.addConstraint(Sketcher.Constraint("Horizontal", 8))
sketch11.addConstraint(Sketcher.Constraint("Vertical", 9))
sketch11.addConstraint(Sketcher.Constraint("Horizontal", 10))
sketch11.addConstraint(Sketcher.Constraint("Vertical", 11))
sketch11.addConstraint(Sketcher.Constraint("Horizontal", 12))
sketch11.addConstraint(Sketcher.Constraint("Vertical", 13))
sketch11.addConstraint(Sketcher.Constraint("Horizontal", 14))
sketch11.addConstraint(Sketcher.Constraint("Vertical", 15))
sketch11.addConstraint(Sketcher.Constraint("Vertical", 17))
sketch11.addConstraint(Sketcher.Constraint("Horizontal", 18))
sketch11.addConstraint(Sketcher.Constraint("Vertical", 19))
sketch11.addConstraint(Sketcher.Constraint("Vertical", 20))
sketch11.addConstraint(Sketcher.Constraint("Horizontal", 21))
sketch11.addConstraint(Sketcher.Constraint("Vertical", 22))
sketch11.addConstraint(Sketcher.Constraint("Horizontal", 23))
sketch11.addConstraint(Sketcher.Constraint("Vertical", 24))
sketch11.addConstraint(Sketcher.Constraint("Horizontal", 25))
sketch11.addConstraint(Sketcher.Constraint("Vertical", 26))
sketch11.addConstraint(Sketcher.Constraint("Horizontal", 27))
sketch11.addConstraint(Sketcher.Constraint("Vertical", 28))
sketch11.addConstraint(Sketcher.Constraint("Horizontal", 29))
sketch11.addConstraint(Sketcher.Constraint("Vertical", 30))
sketch11.addConstraint(Sketcher.Constraint("Horizontal", 31))
sketch11.addConstraint(Sketcher.Constraint("Vertical", 32))
sketch11.addConstraint(Sketcher.Constraint("Horizontal", 33))
sketch11.addConstraint(Sketcher.Constraint("Vertical", 34))
sketch11.addConstraint(Sketcher.Constraint("Horizontal", 35))
sketch11.addConstraint(Sketcher.Constraint("Symmetric", 0, 2, 10, 2, -1, 1))
sketch11.addConstraint(Sketcher.Constraint("Symmetric", 2, 2, 12, 2, -1, 1))
sketch11.addConstraint(Sketcher.Constraint("Symmetric", 4, 2, 14, 2, -1, 1))
sketch11.addConstraint(Sketcher.Constraint("Symmetric", 6, 2, 16, 2, -1, 1))
sketch11.addConstraint(Sketcher.Constraint("Symmetric", 8, 2, 18, 2, -1, 1))
sketch11.addConstraint(Sketcher.Constraint("Symmetric", 26, 2, 28, 2, -1, 1))
sketch11.addConstraint(Sketcher.Constraint("Symmetric", 24, 2, 30, 2, -1, 1))
sketch11.addConstraint(Sketcher.Constraint("Symmetric", 22, 2, 32, 2, -1, 1))
sketch11.addConstraint(Sketcher.Constraint("Symmetric", 20, 2, 34, 2, -1, 1))
sketch11.addConstraint(Sketcher.Constraint("Symmetric", 8, 2, 11, 2, -2))
sketch11.addConstraint(Sketcher.Constraint("Symmetric", 6, 2, 13, 2, -2))
sketch11.addConstraint(Sketcher.Constraint("Symmetric", 21, 2, 24, 2, -2))
sketch11.addConstraint(Sketcher.Constraint("Symmetric", 23, 2, 26, 2, -2))
sketch11.addConstraint(Sketcher.Constraint("Vertical", 1, 2, 4, 2))
sketch11.addConstraint(Sketcher.Constraint("Vertical", 19, 2, 21, 2))
sketch11.addConstraint(Sketcher.Constraint("Equal", 1, 3))
sketch11.addConstraint(Sketcher.Constraint("DistanceX", 2, 2, 2, 1, 3.0))
sketch11.addConstraint(Sketcher.Constraint("DistanceY", 1, 2, 1, 1, 20.0))
sketch11.addConstraint(Sketcher.Constraint("DistanceY", 5, 2, 5, 1, 60.0))
sketch11.addConstraint(Sketcher.Constraint("DistanceY", 20, 1, 20, 2, 10.0))
sketch11.addConstraint(Sketcher.Constraint("DistanceX", 0, 2, 0, 1, 109.5))
sketch11.addConstraint(Sketcher.Constraint("DistanceX", 21, 1, 21, 2, 1.5))
sketch11.addConstraint(Sketcher.Constraint("DistanceY", 20, 2, -1, 1, 35.0))
sketch11.addConstraint(Sketcher.Constraint("DistanceY", 15, 1, 15, 2, 60.000018))
pad7 = doc.addObject("PartDesign::Pad", "Pad006")
body5.addObject(pad7)
pad7.Profile = sketch11
pad7.Length = 1.5
body6 = doc.addObject("PartDesign::Body", "Body005")

# Sketch on XY plane
sketch12 = doc.addObject("Sketcher::SketchObject", "Sketch011")
body6.addObject(sketch12)
sketch12.AttachmentSupport = (doc.getObject("XY_Plane005"), [""])
sketch12.MapMode = "FlatFace"
sketch12.addGeometry(Part.LineSegment(Vector(6.2, 70, 0), Vector(-6.2, 70, 0)), False)
sketch12.addGeometry(Part.LineSegment(Vector(-6.2, 70, 0), Vector(-6.2, 45, 0)), False)
sketch12.addGeometry(Part.LineSegment(Vector(-6.2, 45, 0), Vector(-9.2, 45, 0)), False)
sketch12.addGeometry(Part.LineSegment(Vector(-9.2, 45, 0), Vector(-9.2, 35, 0)), False)
sketch12.addGeometry(Part.LineSegment(Vector(-9.2, 35, 0), Vector(-6.2, 35, 0)), False)
sketch12.addGeometry(Part.LineSegment(Vector(-6.2, 35, 0), Vector(-6.2, -35, 0)), False)
sketch12.addGeometry(Part.LineSegment(Vector(-6.2, -35, 0), Vector(-9.2, -35, 0)), False)
sketch12.addGeometry(Part.LineSegment(Vector(-9.2, -35, 0), Vector(-9.2, -45, 0)), False)
sketch12.addGeometry(Part.LineSegment(Vector(-9.2, -45, 0), Vector(-6.2, -45, 0)), False)
sketch12.addGeometry(Part.LineSegment(Vector(-6.2, -45, 0), Vector(-6.2, -70, 0)), False)
sketch12.addGeometry(Part.LineSegment(Vector(-6.2, -70, 0), Vector(6.2, -70, 0)), False)
sketch12.addGeometry(Part.LineSegment(Vector(6.2, -70, 0), Vector(6.2, 70, 0)), False)
sketch12.addConstraint(Sketcher.Constraint("Coincident", 0, 2, 1, 1))
sketch12.addConstraint(Sketcher.Constraint("Coincident", 1, 2, 2, 1))
sketch12.addConstraint(Sketcher.Constraint("Coincident", 2, 2, 3, 1))
sketch12.addConstraint(Sketcher.Constraint("Coincident", 3, 2, 4, 1))
sketch12.addConstraint(Sketcher.Constraint("Coincident", 4, 2, 5, 1))
sketch12.addConstraint(Sketcher.Constraint("Coincident", 5, 2, 6, 1))
sketch12.addConstraint(Sketcher.Constraint("Coincident", 6, 2, 7, 1))
sketch12.addConstraint(Sketcher.Constraint("Coincident", 7, 2, 8, 1))
sketch12.addConstraint(Sketcher.Constraint("Coincident", 8, 2, 9, 1))
sketch12.addConstraint(Sketcher.Constraint("Coincident", 9, 2, 10, 1))
sketch12.addConstraint(Sketcher.Constraint("Coincident", 10, 2, 11, 1))
sketch12.addConstraint(Sketcher.Constraint("Coincident", 11, 2, 0, 1))
sketch12.addConstraint(Sketcher.Constraint("Horizontal", 0))
sketch12.addConstraint(Sketcher.Constraint("Vertical", 1))
sketch12.addConstraint(Sketcher.Constraint("Horizontal", 2))
sketch12.addConstraint(Sketcher.Constraint("Vertical", 3))
sketch12.addConstraint(Sketcher.Constraint("Horizontal", 4))
sketch12.addConstraint(Sketcher.Constraint("Vertical", 5))
sketch12.addConstraint(Sketcher.Constraint("Horizontal", 6))
sketch12.addConstraint(Sketcher.Constraint("Vertical", 7))
sketch12.addConstraint(Sketcher.Constraint("Horizontal", 8))
sketch12.addConstraint(Sketcher.Constraint("Vertical", 9))
sketch12.addConstraint(Sketcher.Constraint("Horizontal", 10))
sketch12.addConstraint(Sketcher.Constraint("Vertical", 11))
sketch12.addConstraint(Sketcher.Constraint("Symmetric", 0, 2, 10, 2, -1, 1))
sketch12.addConstraint(Sketcher.Constraint("Symmetric", 3, 2, 6, 2, -1))
sketch12.addConstraint(Sketcher.Constraint("Symmetric", 1, 2, 8, 2, -1))
sketch12.addConstraint(Sketcher.Constraint("Vertical", 1, 2, 4, 2))
sketch12.addConstraint(Sketcher.Constraint("DistanceX", 2, 2, 2, 1, 3.0))
sketch12.addConstraint(Sketcher.Constraint("DistanceY", 1, 2, 1, 1, 25.0))
sketch12.addConstraint(Sketcher.Constraint("DistanceY", 3, 2, 3, 1, 10.0))
sketch12.addConstraint(Sketcher.Constraint("DistanceY", 5, 2, 5, 1, 70.0))
sketch12.addConstraint(Sketcher.Constraint("DistanceX", 0, 2, 0, 1, 12.5))
pad8 = doc.addObject("PartDesign::Pad", "Pad007")
body6.addObject(pad8)
pad8.Profile = sketch12
pad8.Length = 1.5

# Sketch on XY plane
sketch13 = doc.addObject("Sketcher::SketchObject", "Sketch012")
body6.addObject(sketch13)
sketch13.AttachmentSupport = (doc.getObject("XY_Plane005"), [""])
sketch13.MapMode = "FlatFace"
sketch13.AttachmentOffset = App.Placement(Vector(0, 0, 1.5), App.Rotation())
sketch13.addGeometry(Part.Circle(Vector(0, 35, 0), Vector(0, 0, 1), 2.8), False)
sketch13.addGeometry(Part.Circle(Vector(0, -35, 0), Vector(0, 0, 1), 2.8), False)
sketch13.addConstraint(Sketcher.Constraint("Equal", 0, 1))
sketch13.addConstraint(Sketcher.Constraint("Symmetric", 0, 3, 1, 3, -1, 1))
sketch13.addConstraint(Sketcher.Constraint("PointOnObject", 0, 3, -2))
sketch13.addConstraint(Sketcher.Constraint("Diameter", 0, 5.5))
sketch13.addConstraint(Sketcher.Constraint("DistanceY", -1, 1, 0, 3, 35.0))
pocket5 = doc.addObject("PartDesign::Pocket", "Pocket004")
body6.addObject(pocket5)
pocket5.Profile = sketch13
pocket5.Type = "ThroughAll"

doc.recompute()
